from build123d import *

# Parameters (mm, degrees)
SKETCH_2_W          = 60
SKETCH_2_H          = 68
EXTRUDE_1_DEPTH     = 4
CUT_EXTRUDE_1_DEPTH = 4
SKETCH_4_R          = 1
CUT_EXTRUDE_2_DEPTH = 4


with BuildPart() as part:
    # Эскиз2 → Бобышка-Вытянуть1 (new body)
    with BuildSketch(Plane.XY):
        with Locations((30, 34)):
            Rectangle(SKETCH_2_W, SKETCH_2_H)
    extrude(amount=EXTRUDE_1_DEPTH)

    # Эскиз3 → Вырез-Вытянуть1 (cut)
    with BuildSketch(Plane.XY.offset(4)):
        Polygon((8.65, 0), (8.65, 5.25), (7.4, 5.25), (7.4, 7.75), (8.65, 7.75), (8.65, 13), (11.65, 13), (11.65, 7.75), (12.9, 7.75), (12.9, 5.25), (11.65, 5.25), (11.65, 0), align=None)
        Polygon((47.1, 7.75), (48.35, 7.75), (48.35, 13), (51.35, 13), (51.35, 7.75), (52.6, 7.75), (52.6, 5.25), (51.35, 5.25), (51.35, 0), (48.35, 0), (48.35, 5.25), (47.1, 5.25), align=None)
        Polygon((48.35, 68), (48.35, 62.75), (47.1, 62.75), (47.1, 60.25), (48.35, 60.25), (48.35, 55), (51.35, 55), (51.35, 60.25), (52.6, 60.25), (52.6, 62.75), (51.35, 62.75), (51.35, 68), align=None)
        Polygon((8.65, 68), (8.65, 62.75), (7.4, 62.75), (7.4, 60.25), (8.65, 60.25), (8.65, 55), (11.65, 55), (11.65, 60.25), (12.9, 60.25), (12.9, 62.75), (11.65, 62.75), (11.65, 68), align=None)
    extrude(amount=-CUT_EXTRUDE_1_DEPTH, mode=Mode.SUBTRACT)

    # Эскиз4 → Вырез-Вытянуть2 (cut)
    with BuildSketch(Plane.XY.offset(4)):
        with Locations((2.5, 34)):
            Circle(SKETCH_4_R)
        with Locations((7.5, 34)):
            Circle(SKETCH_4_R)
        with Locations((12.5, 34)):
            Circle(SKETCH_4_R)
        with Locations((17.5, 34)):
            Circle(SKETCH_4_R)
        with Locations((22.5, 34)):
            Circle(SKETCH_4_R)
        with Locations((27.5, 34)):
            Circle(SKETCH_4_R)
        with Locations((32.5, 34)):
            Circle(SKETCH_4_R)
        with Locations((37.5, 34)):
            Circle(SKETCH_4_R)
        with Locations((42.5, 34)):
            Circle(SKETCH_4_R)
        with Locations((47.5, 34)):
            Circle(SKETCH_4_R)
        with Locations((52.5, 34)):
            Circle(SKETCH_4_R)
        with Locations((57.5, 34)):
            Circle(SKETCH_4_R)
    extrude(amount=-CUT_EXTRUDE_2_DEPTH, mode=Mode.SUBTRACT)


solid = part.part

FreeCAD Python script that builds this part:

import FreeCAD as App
import Part
import Sketcher
from FreeCAD import Vector

doc = App.newDocument("Part")
params = doc.addObject("Spreadsheet::Sheet", "Params")
for row, (alias, value) in enumerate([
    ("sketch1_width", "60 mm"),
    ("sketch1_height", "68 mm"),
    ("pad1_length", "4 mm"),
    ("sketch2_width", "3 mm"),
    ("sketch2_height", "2.5 mm"),
    ("sketch2_width2", "1.25 mm"),
    ("pocket1_length", "4 mm"),
    ("sketch3_diameter", "2 mm"),
    ("pocket2_length", "4 mm"),
], start=1):
    params.set(f"A{row}", alias)
    params.set(f"B{row}", "=" + value)
    params.setAlias(f"B{row}", alias)

body = doc.addObject("PartDesign::Body", "Body")

# Sketch on XY plane
sketch1 = body.newObject("Sketcher::SketchObject", "Sketch")
sketch1.AttachmentSupport = (doc.getObject("XY_Plane"), [""])
sketch1.MapMode = "FlatFace"
sketch1.addGeometry([
    Part.LineSegment(Vector(0, 68, 0), Vector(0, 0, 0)),
    Part.LineSegment(Vector(0, 0, 0), Vector(60, 0, 0)),
    Part.LineSegment(Vector(60, 0, 0), Vector(60, 68, 0)),
    Part.LineSegment(Vector(60, 68, 0), Vector(0, 68, 0)),
], False)
sketch1.addConstraint([
    Sketcher.Constraint("Coincident", 0, 2, 1, 1),
    Sketcher.Constraint("Coincident", 1, 2, 2, 1),
    Sketcher.Constraint("Coincident", 2, 2, 3, 1),
    Sketcher.Constraint("Coincident", 3, 2, 0, 1),
    Sketcher.Constraint("Vertical", 0),
    Sketcher.Constraint("Horizontal", 1),
    Sketcher.Constraint("Vertical", 2),
    Sketcher.Constraint("Horizontal", 3),
    Sketcher.Constraint("Coincident", 0, 2, -1, 1),
    Sketcher.Constraint("DistanceX", 1, 1, 1, 2, 60.0),
    Sketcher.Constraint("DistanceY", 0, 2, 0, 1, 68.0),
])
sketch1.setExpression("Constraints[9]", "Params.sketch1_width")
sketch1.setExpression("Constraints[10]", "Params.sketch1_height")
pad1 = body.newObject("PartDesign::Pad", "Pad")
pad1.Profile = sketch1
pad1.setExpression("Length", "Params.pad1_length")

# Sketch on XY plane
sketch2 = body.newObject("Sketcher::SketchObject", "Sketch001")
sketch2.AttachmentSupport = (doc.getObject("XY_Plane"), [""])
sketch2.MapMode = "FlatFace"
sketch2.AttachmentOffset = App.Placement(Vector(0, 0, 4), App.Rotation())
sketch2.addGeometry([
    Part.LineSegment(Vector(8.7, 5.2, 0), Vector(8.7, 0, 0)),  # 0
    Part.LineSegment(Vector(8.7, 0, 0), Vector(11.7, 0, 0)),  # 1
    Part.LineSegment(Vector(11.7, 0, 0), Vector(11.7, 5.2, 0)),  # 2
    Part.LineSegment(Vector(11.7, 5.2, 0), Vector(12.9, 5.2, 0)),  # 3
    Part.LineSegment(Vector(12.9, 5.2, 0), Vector(12.9, 7.8, 0)),  # 4
    Part.LineSegment(Vector(12.9, 7.8, 0), Vector(11.7, 7.8, 0)),  # 5
    Part.LineSegment(Vector(11.7, 7.8, 0), Vector(11.7, 13, 0)),  # 6
    Part.LineSegment(Vector(11.7, 13, 0), Vector(8.7, 13, 0)),  # 7
    Part.LineSegment(Vector(8.7, 13, 0), Vector(8.7, 7.8, 0)),  # 8
    Part.LineSegment(Vector(8.7, 7.8, 0), Vector(7.4, 7.8, 0)),  # 9
    Part.LineSegment(Vector(7.4, 7.8, 0), Vector(7.4, 5.2, 0)),  # 10
    Part.LineSegment(Vector(7.4, 5.2, 0), Vector(8.7, 5.2, 0)),  # 11
    Part.LineSegment(Vector(48.4, 7.8, 0), Vector(47.1, 7.8, 0)),  # 12
    Part.LineSegment(Vector(47.1, 7.8, 0), Vector(47.1, 5.2, 0)),  # 13
    Part.LineSegment(Vector(47.1, 5.2, 0), Vector(48.4, 5.2, 0)),  # 14
    Part.LineSegment(Vector(48.4, 5.2, 0), Vector(48.4, 0, 0)),  # 15
    Part.LineSegment(Vector(48.4, 0, 0), Vector(51.4, 0, 0)),  # 16
    Part.LineSegment(Vector(51.4, 0, 0), Vector(51.4, 5.2, 0)),  # 17
    Part.LineSegment(Vector(51.4, 5.2, 0), Vector(52.6, 5.2, 0)),  # 18
    Part.LineSegment(Vector(52.6, 5.2, 0), Vector(52.6, 7.8, 0)),  # 19
    Part.LineSegment(Vector(52.6, 7.8, 0), Vector(51.4, 7.8, 0)),  # 20
    Part.LineSegment(Vector(51.4, 7.8, 0), Vector(51.4, 13, 0)),  # 21
    Part.LineSegment(Vector(51.4, 13, 0), Vector(48.4, 13, 0)),  # 22
    Part.LineSegment(Vector(48.4, 13, 0), Vector(48.4, 7.8, 0)),  # 23
    Part.LineSegment(Vector(48.4, 68, 0), Vector(48.4, 62.8, 0)),  # 24
    Part.LineSegment(Vector(48.4, 62.8, 0), Vector(47.1, 62.8, 0)),  # 25
    Part.LineSegment(Vector(47.1, 62.8, 0), Vector(47.1, 60.2, 0)),  # 26
    Part.LineSegment(Vector(47.1, 60.2, 0), Vector(48.4, 60.2, 0)),  # 27
    Part.LineSegment(Vector(48.4, 60.2, 0), Vector(48.4, 55, 0)),  # 28
    Part.LineSegment(Vector(48.4, 55, 0), Vector(51.4, 55, 0)),  # 29
    Part.LineSegment(Vector(51.4, 55, 0), Vector(51.4, 60.2, 0)),  # 30
    Part.LineSegment(Vector(51.4, 60.2, 0), Vector(52.6, 60.2, 0)),  # 31
    Part.LineSegment(Vector(52.6, 60.2, 0), Vector(52.6, 62.8, 0)),  # 32
    Part.LineSegment(Vector(52.6, 62.8, 0), Vector(51.4, 62.8, 0)),  # 33
    Part.LineSegment(Vector(51.4, 62.8, 0), Vector(51.4, 68, 0)),  # 34
    Part.LineSegment(Vector(51.4, 68, 0), Vector(48.4, 68, 0)),  # 35
    Part.LineSegment(Vector(8.7, 68, 0), Vector(8.7, 62.8, 0)),  # 36
    Part.LineSegment(Vector(8.7, 62.8, 0), Vector(7.4, 62.8, 0)),  # 37
    Part.LineSegment(Vector(7.4, 62.8, 0), Vector(7.4, 60.2, 0)),  # 38
    Part.LineSegment(Vector(7.4, 60.2, 0), Vector(8.7, 60.2, 0)),  # 39
    Part.LineSegment(Vector(8.7, 60.2, 0), Vector(8.7, 55, 0)),  # 40
    Part.LineSegment(Vector(8.7, 55, 0), Vector(11.7, 55, 0)),  # 41
    Part.LineSegment(Vector(11.7, 55, 0), Vector(11.7, 60.2, 0)),  # 42
    Part.LineSegment(Vector(11.7, 60.2, 0), Vector(12.9, 60.2, 0)),  # 43
    Part.LineSegment(Vector(12.9, 60.2, 0), Vector(12.9, 62.8, 0)),  # 44
    Part.LineSegment(Vector(12.9, 62.8, 0), Vector(11.7, 62.8, 0)),  # 45
    Part.LineSegment(Vector(11.7, 62.8, 0), Vector(11.7, 68, 0)),  # 46
    Part.LineSegment(Vector(11.7, 68, 0), Vector(8.7, 68, 0)),  # 47
], False)
sketch2.addConstraint([
    Sketcher.Constraint("Coincident", 0, 2, 1, 1),
    Sketcher.Constraint("Coincident", 1, 2, 2, 1),
    Sketcher.Constraint("Coincident", 2, 2, 3, 1),
    Sketcher.Constraint("Coincident", 3, 2, 4, 1),
    Sketcher.Constraint("Coincident", 4, 2, 5, 1),
    Sketcher.Constraint("Coincident", 5, 2, 6, 1),
    Sketcher.Constraint("Coincident", 6, 2, 7, 1),
    Sketcher.Constraint("Coincident", 7, 2, 8, 1),
    Sketcher.Constraint("Coincident", 8, 2, 9, 1),
    Sketcher.Constraint("Coincident", 9, 2, 10, 1),
    Sketcher.Constraint("Coincident", 10, 2, 11, 1),
    Sketcher.Constraint("Coincident", 11, 2, 0, 1),
    Sketcher.Constraint("Coincident", 12, 2, 13, 1),
    Sketcher.Constraint("Coincident", 13, 2, 14, 1),
    Sketcher.Constraint("Coincident", 14, 2, 15, 1),
    Sketcher.Constraint("Coincident", 15, 2, 16, 1),
    Sketcher.Constraint("Coincident", 16, 2, 17, 1),
    Sketcher.Constraint("Coincident", 17, 2, 18, 1),
    Sketcher.Constraint("Coincident", 18, 2, 19, 1),
    Sketcher.Constraint("Coincident", 19, 2, 20, 1),
    Sketcher.Constraint("Coincident", 20, 2, 21, 1),
    Sketcher.Constraint("Coincident", 21, 2, 22, 1),
    Sketcher.Constraint("Coincident", 22, 2, 23, 1),
    Sketcher.Constraint("Coincident", 23, 2, 12, 1),
    Sketcher.Constraint("Coincident", 24, 2, 25, 1),
    Sketcher.Constraint("Coincident", 25, 2, 26, 1),
    Sketcher.Constraint("Coincident", 26, 2, 27, 1),
    Sketcher.Constraint("Coincident", 27, 2, 28, 1),
    Sketcher.Constraint("Coincident", 28, 2, 29, 1),
    Sketcher.Constraint("Coincident", 29, 2, 30, 1),
    Sketcher.Constraint("Coincident", 30, 2, 31, 1),
    Sketcher.Constraint("Coincident", 31, 2, 32, 1),
    Sketcher.Constraint("Coincident", 32, 2, 33, 1),
    Sketcher.Constraint("Coincident", 33, 2, 34, 1),
    Sketcher.Constraint("Coincident", 34, 2, 35, 1),
    Sketcher.Constraint("Coincident", 35, 2, 24, 1),
    Sketcher.Constraint("Coincident", 36, 2, 37, 1),
    Sketcher.Constraint("Coincident", 37, 2, 38, 1),
    Sketcher.Constraint("Coincident", 38, 2, 39, 1),
    Sketcher.Constraint("Coincident", 39, 2, 40, 1),
    Sketcher.Constraint("Coincident", 40, 2, 41, 1),
    Sketcher.Constraint("Coincident", 41, 2, 42, 1),
    Sketcher.Constraint("Coincident", 42, 2, 43, 1),
    Sketcher.Constraint("Coincident", 43, 2, 44, 1),
    Sketcher.Constraint("Coincident", 44, 2, 45, 1),
    Sketcher.Constraint("Coincident", 45, 2, 46, 1),
    Sketcher.Constraint("Coincident", 46, 2, 47, 1),
    Sketcher.Constraint("Coincident", 47, 2, 36, 1),
    Sketcher.Constraint("Vertical", 0),
    Sketcher.Constraint("Horizontal", 1),
    Sketcher.Constraint("Vertical", 2),
    Sketcher.Constraint("Horizontal", 3),
    Sketcher.Constraint("Vertical", 4),
    Sketcher.Constraint("Horizontal", 5),
    Sketcher.Constraint("Vertical", 6),
    Sketcher.Constraint("Horizontal", 7),
    Sketcher.Constraint("Vertical", 8),
    Sketcher.Constraint("Horizontal", 9),
    Sketcher.Constraint("Vertical", 10),
    Sketcher.Constraint("Horizontal", 11),
    Sketcher.Constraint("Horizontal", 12),
    Sketcher.Constraint("Vertical", 13),
    Sketcher.Constraint("Horizontal", 14),
    Sketcher.Constraint("Vertical", 15),
    Sketcher.Constraint("Horizontal", 16),
    Sketcher.Constraint("Vertical", 17),
    Sketcher.Constraint("Horizontal", 18),
    Sketcher.Constraint("Vertical", 19),
    Sketcher.Constraint("Horizontal", 20),
    Sketcher.Constraint("Vertical", 21),
    Sketcher.Constraint("Horizontal", 22),
    Sketcher.Constraint("Vertical", 23),
    Sketcher.Constraint("Vertical", 24),
    Sketcher.Constraint("Horizontal", 25),
    Sketcher.Constraint("Vertical", 26),
    Sketcher.Constraint("Horizontal", 27),
    Sketcher.Constraint("Vertical", 28),
    Sketcher.Constraint("Horizontal", 29),
    Sketcher.Constraint("Vertical", 30),
    Sketcher.Constraint("Horizontal", 31),
    Sketcher.Constraint("Vertical", 32),
    Sketcher.Constraint("Horizontal", 33),
    Sketcher.Constraint("Vertical", 34),
    Sketcher.Constraint("Horizontal", 35),
    Sketcher.Constraint("Vertical", 36),
    Sketcher.Constraint("Horizontal", 37),
    Sketcher.Constraint("Vertical", 38),
    Sketcher.Constraint("Horizontal", 39),
    Sketcher.Constraint("Vertical", 40),
    Sketcher.Constraint("Horizontal", 41),
    Sketcher.Constraint("Vertical", 42),
    Sketcher.Constraint("Horizontal", 43),
    Sketcher.Constraint("Vertical", 44),
    Sketcher.Constraint("Horizontal", 45),
    Sketcher.Constraint("Vertical", 46),
    Sketcher.Constraint("Horizontal", 47),
    Sketcher.Constraint("PointOnObject", 0, 2, -1),
    Sketcher.Constraint("PointOnObject", 15, 2, -1),
    Sketcher.Constraint("Horizontal", 5, 2, 8, 2),
    Sketcher.Constraint("Horizontal", 3, 2, 10, 2),
    Sketcher.Constraint("Horizontal", 9, 2, 12, 2),
    Sketcher.Constraint("Horizontal", 11, 2, 13, 2),
    Sketcher.Constraint("Horizontal", 14, 2, 17, 2),
    Sketcher.Constraint("Horizontal", 12, 2, 19, 2),
    Sketcher.Constraint("Horizontal", 7, 2, 21, 2),
    Sketcher.Constraint("Horizontal", 27, 2, 30, 2),
    Sketcher.Constraint("Horizontal", 25, 2, 32, 2),
    Sketcher.Constraint("Horizontal", 33, 2, 36, 2),
    Sketcher.Constraint("Horizontal", 31, 2, 38, 2),
    Sketcher.Constraint("Horizontal", 29, 2, 40, 2),
    Sketcher.Constraint("Horizontal", 39, 2, 42, 2),
    Sketcher.Constraint("Horizontal", 37, 2, 44, 2),
    Sketcher.Constraint("Horizontal", 35, 2, 46, 2),
    Sketcher.Constraint("Vertical", 2, 2, 5, 2),
    Sketcher.Constraint("Vertical", 0, 2, 7, 2),
    Sketcher.Constraint("Vertical", 17, 2, 20, 2),
    Sketcher.Constraint("Vertical", 15, 2, 22, 2),
    Sketcher.Constraint("Vertical", 23, 2, 24, 2),
    Sketcher.Constraint("Vertical", 13, 2, 25, 2),
    Sketcher.Constraint("Vertical", 24, 2, 27, 2),
    Sketcher.Constraint("Vertical", 21, 2, 29, 2),
    Sketcher.Constraint("Vertical", 19, 2, 31, 2),
    Sketcher.Constraint("Vertical", 30, 2, 33, 2),
    Sketcher.Constraint("Vertical", 11, 2, 36, 2),
    Sketcher.Constraint("Vertical", 10, 2, 37, 2),
    Sketcher.Constraint("Vertical", 36, 2, 39, 2),
    Sketcher.Constraint("Vertical", 6, 2, 41, 2),
    Sketcher.Constraint("Vertical", 4, 2, 43, 2),
    Sketcher.Constraint("Vertical", 42, 2, 45, 2),
    Sketcher.Constraint("Equal", 5, 9),
    Sketcher.Constraint("Equal", 11, 12),
    Sketcher.Constraint("Equal", 7, 16),
    Sketcher.Constraint("Equal", 14, 18),
    Sketcher.Constraint("Equal", 2, 6),
    Sketcher.Constraint("Equal", 23, 24),
    Sketcher.Constraint("Equal", 19, 26),
    Sketcher.Constraint("Equal", 24, 28),
    Sketcher.Constraint("DistanceX", 1, 1, 1, 2, 3.0),
    Sketcher.Constraint("DistanceY", 4, 1, 4, 2, 2.5),
    Sketcher.Constraint("DistanceY", -1, 1, 6, 2, 13.0),
    Sketcher.Constraint("DistanceY", -1, 1, 28, 2, 55.0),
    Sketcher.Constraint("DistanceX", 3, 1, 3, 2, 1.25),
    Sketcher.Constraint("DistanceX", -1, 1, 3, 2, 12.9),
    Sketcher.Constraint("DistanceX", -1, 1, 12, 2, 47.1),
])
sketch2.setExpression("Constraints[137]", "Params.sketch2_width")
sketch2.setExpression("Constraints[138]", "Params.sketch2_height")
sketch2.setExpression("Constraints[141]", "Params.sketch2_width2")
pocket1 = body.newObject("PartDesign::Pocket", "Pocket")
pocket1.Profile = sketch2
pocket1.setExpression("Length", "Params.pocket1_length")

# Sketch on XY plane
sketch3 = body.newObject("Sketcher::SketchObject", "Sketch002")
sketch3.AttachmentSupport = (doc.getObject("XY_Plane"), [""])
sketch3.MapMode = "FlatFace"
sketch3.AttachmentOffset = App.Placement(Vector(0, 0, 4), App.Rotation())
sketch3.addGeometry([
    Part.Circle(Vector(2.5, 34, 0), Vector(0, 0, 1), 1),  # 0
    Part.Circle(Vector(7.5, 34, 0), Vector(0, 0, 1), 1),  # 1
    Part.Circle(Vector(12.5, 34, 0), Vector(0, 0, 1), 1),  # 2
    Part.Circle(Vector(17.5, 34, 0), Vector(0, 0, 1), 1),  # 3
    Part.Circle(Vector(22.5, 34, 0), Vector(0, 0, 1), 1),  # 4
    Part.Circle(Vector(27.5, 34, 0), Vector(0, 0, 1), 1),  # 5
    Part.Circle(Vector(32.5, 34, 0), Vector(0, 0, 1), 1),  # 6
    Part.Circle(Vector(37.5, 34, 0), Vector(0, 0, 1), 1),  # 7
    Part.Circle(Vector(42.5, 34, 0), Vector(0, 0, 1), 1),  # 8
    Part.Circle(Vector(47.5, 34, 0), Vector(0, 0, 1), 1),  # 9
    Part.Circle(Vector(52.5, 34, 0), Vector(0, 0, 1), 1),  # 10
    Part.Circle(Vector(57.5, 34, 0), Vector(0, 0, 1), 1),  # 11
], False)
sketch3.addConstraint([
    Sketcher.Constraint("Equal", 0, 1),
    Sketcher.Constraint("Equal", 1, 2),
    Sketcher.Constraint("Equal", 2, 3),
    Sketcher.Constraint("Equal", 3, 4),
    Sketcher.Constraint("Equal", 4, 5),
    Sketcher.Constraint("Equal", 5, 6),
    Sketcher.Constraint("Equal", 6, 7),
    Sketcher.Constraint("Equal", 7, 8),
    Sketcher.Constraint("Equal", 8, 9),
    Sketcher.Constraint("Equal", 9, 10),
    Sketcher.Constraint("Equal", 10, 11),
    Sketcher.Constraint("Horizontal", 0, 3, 1, 3),
    Sketcher.Constraint("Horizontal", 1, 3, 2, 3),
    Sketcher.Constraint("Horizontal", 2, 3, 3, 3),
    Sketcher.Constraint("Horizontal", 3, 3, 4, 3),
    Sketcher.Constraint("Horizontal", 4, 3, 5, 3),
    Sketcher.Constraint("Horizontal", 5, 3, 6, 3),
    Sketcher.Constraint("Horizontal", 6, 3, 7, 3),
    Sketcher.Constraint("Horizontal", 7, 3, 8, 3),
    Sketcher.Constraint("Horizontal", 8, 3, 9, 3),
    Sketcher.Constraint("Horizontal", 9, 3, 10, 3),
    Sketcher.Constraint("Horizontal", 10, 3, 11, 3),
    Sketcher.Constraint("Diameter", 0, 2.0),
    Sketcher.Constraint("DistanceY", -1, 1, 0, 3, 34.0),
    Sketcher.Constraint("DistanceX", 0, 3, 1, 3, 5.0),
    Sketcher.Constraint("DistanceX", 1, 3, 2, 3, 5.0),
    Sketcher.Constraint("DistanceX", 2, 3, 3, 3, 5.0),
    Sketcher.Constraint("DistanceX", 3, 3, 4, 3, 5.0),
    Sketcher.Constraint("DistanceX", 4, 3, 5, 3, 5.0),
    Sketcher.Constraint("DistanceX", 5, 3, 6, 3, 5.0),
    Sketcher.Constraint("DistanceX", 6, 3, 7, 3, 5.0),
    Sketcher.Constraint("DistanceX", 7, 3, 8, 3, 5.0),
    Sketcher.Constraint("DistanceX", 8, 3, 9, 3, 5.0),
    Sketcher.Constraint("DistanceX", 9, 3, 10, 3, 5.0),
    Sketcher.Constraint("DistanceX", 10, 3, 11, 3, 5.0),
    Sketcher.Constraint("DistanceX", -1, 1, 0, 3, 2.5),
])
sketch3.setExpression("Constraints[22]", "Params.sketch3_diameter")
pocket2 = body.newObject("PartDesign::Pocket", "Pocket001")
pocket2.Profile = sketch3
pocket2.setExpression("Length", "Params.pocket2_length")

doc.recompute()
